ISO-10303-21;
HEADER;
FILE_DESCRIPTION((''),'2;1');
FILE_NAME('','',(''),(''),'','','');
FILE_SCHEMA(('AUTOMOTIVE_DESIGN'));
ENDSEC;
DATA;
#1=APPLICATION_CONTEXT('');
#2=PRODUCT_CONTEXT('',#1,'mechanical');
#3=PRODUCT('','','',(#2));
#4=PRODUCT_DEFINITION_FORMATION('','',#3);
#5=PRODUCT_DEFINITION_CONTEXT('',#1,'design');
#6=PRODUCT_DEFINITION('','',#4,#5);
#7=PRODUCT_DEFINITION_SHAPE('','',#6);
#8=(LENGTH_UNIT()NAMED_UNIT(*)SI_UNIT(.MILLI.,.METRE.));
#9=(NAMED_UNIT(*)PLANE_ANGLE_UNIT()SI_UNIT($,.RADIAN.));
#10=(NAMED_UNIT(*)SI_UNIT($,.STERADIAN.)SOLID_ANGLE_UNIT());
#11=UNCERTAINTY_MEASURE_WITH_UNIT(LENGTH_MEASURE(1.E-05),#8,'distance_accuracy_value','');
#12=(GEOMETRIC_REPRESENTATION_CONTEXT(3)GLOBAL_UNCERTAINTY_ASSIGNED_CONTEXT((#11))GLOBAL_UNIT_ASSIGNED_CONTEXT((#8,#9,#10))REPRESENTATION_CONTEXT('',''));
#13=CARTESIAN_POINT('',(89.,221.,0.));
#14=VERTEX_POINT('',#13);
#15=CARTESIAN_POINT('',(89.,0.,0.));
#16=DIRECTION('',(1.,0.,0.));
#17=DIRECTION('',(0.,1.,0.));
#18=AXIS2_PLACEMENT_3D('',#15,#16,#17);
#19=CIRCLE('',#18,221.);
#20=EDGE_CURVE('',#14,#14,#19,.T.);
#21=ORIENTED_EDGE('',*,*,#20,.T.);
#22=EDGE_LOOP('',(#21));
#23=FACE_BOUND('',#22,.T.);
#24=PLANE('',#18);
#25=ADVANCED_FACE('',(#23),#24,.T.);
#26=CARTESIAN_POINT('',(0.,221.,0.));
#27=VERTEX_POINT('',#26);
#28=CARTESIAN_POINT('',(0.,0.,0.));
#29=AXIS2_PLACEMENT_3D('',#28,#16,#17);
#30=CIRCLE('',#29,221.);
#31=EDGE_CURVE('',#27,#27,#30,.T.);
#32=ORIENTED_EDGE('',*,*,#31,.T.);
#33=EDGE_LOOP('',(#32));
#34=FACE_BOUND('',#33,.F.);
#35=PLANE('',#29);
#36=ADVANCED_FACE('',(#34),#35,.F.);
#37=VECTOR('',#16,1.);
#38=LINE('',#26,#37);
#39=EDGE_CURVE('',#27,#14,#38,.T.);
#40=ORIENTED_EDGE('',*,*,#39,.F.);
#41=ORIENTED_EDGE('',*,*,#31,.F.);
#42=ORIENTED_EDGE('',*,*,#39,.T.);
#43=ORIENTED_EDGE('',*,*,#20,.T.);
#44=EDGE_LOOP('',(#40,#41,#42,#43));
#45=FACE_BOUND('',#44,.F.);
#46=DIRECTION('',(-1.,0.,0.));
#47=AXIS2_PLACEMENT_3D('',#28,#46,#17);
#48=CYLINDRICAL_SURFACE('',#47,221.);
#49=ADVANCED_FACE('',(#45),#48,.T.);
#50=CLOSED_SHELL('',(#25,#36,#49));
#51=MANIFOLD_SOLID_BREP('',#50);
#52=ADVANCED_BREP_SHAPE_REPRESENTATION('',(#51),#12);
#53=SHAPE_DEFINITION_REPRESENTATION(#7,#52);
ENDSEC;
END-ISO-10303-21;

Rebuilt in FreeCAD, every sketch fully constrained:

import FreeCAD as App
import Part
import Sketcher
from FreeCAD import Vector
Q = App.Units.Quantity

doc = App.newDocument("Part")
body = doc.addObject("PartDesign::Body", "Body")

# Sketch on YZ plane
sketch1 = body.newObject("Sketcher::SketchObject", "Sketch")
sketch1.AttachmentSupport = (doc.getObject("YZ_Plane"), [""])
sketch1.MapMode = "FlatFace"
sketch1.addGeometry(Part.Circle(Vector(0, 0, 0), Vector(0, 0, 1), 221), False)
sketch1.addConstraint(Sketcher.Constraint("Coincident", 0, 3, -1, 1))
sketch1.addConstraint(Sketcher.Constraint("Diameter", 0, Q("442 mm")))
pad1 = body.newObject("PartDesign::Pad", "Pad")
pad1.Profile = sketch1
pad1.Length = 89

doc.recompute()
